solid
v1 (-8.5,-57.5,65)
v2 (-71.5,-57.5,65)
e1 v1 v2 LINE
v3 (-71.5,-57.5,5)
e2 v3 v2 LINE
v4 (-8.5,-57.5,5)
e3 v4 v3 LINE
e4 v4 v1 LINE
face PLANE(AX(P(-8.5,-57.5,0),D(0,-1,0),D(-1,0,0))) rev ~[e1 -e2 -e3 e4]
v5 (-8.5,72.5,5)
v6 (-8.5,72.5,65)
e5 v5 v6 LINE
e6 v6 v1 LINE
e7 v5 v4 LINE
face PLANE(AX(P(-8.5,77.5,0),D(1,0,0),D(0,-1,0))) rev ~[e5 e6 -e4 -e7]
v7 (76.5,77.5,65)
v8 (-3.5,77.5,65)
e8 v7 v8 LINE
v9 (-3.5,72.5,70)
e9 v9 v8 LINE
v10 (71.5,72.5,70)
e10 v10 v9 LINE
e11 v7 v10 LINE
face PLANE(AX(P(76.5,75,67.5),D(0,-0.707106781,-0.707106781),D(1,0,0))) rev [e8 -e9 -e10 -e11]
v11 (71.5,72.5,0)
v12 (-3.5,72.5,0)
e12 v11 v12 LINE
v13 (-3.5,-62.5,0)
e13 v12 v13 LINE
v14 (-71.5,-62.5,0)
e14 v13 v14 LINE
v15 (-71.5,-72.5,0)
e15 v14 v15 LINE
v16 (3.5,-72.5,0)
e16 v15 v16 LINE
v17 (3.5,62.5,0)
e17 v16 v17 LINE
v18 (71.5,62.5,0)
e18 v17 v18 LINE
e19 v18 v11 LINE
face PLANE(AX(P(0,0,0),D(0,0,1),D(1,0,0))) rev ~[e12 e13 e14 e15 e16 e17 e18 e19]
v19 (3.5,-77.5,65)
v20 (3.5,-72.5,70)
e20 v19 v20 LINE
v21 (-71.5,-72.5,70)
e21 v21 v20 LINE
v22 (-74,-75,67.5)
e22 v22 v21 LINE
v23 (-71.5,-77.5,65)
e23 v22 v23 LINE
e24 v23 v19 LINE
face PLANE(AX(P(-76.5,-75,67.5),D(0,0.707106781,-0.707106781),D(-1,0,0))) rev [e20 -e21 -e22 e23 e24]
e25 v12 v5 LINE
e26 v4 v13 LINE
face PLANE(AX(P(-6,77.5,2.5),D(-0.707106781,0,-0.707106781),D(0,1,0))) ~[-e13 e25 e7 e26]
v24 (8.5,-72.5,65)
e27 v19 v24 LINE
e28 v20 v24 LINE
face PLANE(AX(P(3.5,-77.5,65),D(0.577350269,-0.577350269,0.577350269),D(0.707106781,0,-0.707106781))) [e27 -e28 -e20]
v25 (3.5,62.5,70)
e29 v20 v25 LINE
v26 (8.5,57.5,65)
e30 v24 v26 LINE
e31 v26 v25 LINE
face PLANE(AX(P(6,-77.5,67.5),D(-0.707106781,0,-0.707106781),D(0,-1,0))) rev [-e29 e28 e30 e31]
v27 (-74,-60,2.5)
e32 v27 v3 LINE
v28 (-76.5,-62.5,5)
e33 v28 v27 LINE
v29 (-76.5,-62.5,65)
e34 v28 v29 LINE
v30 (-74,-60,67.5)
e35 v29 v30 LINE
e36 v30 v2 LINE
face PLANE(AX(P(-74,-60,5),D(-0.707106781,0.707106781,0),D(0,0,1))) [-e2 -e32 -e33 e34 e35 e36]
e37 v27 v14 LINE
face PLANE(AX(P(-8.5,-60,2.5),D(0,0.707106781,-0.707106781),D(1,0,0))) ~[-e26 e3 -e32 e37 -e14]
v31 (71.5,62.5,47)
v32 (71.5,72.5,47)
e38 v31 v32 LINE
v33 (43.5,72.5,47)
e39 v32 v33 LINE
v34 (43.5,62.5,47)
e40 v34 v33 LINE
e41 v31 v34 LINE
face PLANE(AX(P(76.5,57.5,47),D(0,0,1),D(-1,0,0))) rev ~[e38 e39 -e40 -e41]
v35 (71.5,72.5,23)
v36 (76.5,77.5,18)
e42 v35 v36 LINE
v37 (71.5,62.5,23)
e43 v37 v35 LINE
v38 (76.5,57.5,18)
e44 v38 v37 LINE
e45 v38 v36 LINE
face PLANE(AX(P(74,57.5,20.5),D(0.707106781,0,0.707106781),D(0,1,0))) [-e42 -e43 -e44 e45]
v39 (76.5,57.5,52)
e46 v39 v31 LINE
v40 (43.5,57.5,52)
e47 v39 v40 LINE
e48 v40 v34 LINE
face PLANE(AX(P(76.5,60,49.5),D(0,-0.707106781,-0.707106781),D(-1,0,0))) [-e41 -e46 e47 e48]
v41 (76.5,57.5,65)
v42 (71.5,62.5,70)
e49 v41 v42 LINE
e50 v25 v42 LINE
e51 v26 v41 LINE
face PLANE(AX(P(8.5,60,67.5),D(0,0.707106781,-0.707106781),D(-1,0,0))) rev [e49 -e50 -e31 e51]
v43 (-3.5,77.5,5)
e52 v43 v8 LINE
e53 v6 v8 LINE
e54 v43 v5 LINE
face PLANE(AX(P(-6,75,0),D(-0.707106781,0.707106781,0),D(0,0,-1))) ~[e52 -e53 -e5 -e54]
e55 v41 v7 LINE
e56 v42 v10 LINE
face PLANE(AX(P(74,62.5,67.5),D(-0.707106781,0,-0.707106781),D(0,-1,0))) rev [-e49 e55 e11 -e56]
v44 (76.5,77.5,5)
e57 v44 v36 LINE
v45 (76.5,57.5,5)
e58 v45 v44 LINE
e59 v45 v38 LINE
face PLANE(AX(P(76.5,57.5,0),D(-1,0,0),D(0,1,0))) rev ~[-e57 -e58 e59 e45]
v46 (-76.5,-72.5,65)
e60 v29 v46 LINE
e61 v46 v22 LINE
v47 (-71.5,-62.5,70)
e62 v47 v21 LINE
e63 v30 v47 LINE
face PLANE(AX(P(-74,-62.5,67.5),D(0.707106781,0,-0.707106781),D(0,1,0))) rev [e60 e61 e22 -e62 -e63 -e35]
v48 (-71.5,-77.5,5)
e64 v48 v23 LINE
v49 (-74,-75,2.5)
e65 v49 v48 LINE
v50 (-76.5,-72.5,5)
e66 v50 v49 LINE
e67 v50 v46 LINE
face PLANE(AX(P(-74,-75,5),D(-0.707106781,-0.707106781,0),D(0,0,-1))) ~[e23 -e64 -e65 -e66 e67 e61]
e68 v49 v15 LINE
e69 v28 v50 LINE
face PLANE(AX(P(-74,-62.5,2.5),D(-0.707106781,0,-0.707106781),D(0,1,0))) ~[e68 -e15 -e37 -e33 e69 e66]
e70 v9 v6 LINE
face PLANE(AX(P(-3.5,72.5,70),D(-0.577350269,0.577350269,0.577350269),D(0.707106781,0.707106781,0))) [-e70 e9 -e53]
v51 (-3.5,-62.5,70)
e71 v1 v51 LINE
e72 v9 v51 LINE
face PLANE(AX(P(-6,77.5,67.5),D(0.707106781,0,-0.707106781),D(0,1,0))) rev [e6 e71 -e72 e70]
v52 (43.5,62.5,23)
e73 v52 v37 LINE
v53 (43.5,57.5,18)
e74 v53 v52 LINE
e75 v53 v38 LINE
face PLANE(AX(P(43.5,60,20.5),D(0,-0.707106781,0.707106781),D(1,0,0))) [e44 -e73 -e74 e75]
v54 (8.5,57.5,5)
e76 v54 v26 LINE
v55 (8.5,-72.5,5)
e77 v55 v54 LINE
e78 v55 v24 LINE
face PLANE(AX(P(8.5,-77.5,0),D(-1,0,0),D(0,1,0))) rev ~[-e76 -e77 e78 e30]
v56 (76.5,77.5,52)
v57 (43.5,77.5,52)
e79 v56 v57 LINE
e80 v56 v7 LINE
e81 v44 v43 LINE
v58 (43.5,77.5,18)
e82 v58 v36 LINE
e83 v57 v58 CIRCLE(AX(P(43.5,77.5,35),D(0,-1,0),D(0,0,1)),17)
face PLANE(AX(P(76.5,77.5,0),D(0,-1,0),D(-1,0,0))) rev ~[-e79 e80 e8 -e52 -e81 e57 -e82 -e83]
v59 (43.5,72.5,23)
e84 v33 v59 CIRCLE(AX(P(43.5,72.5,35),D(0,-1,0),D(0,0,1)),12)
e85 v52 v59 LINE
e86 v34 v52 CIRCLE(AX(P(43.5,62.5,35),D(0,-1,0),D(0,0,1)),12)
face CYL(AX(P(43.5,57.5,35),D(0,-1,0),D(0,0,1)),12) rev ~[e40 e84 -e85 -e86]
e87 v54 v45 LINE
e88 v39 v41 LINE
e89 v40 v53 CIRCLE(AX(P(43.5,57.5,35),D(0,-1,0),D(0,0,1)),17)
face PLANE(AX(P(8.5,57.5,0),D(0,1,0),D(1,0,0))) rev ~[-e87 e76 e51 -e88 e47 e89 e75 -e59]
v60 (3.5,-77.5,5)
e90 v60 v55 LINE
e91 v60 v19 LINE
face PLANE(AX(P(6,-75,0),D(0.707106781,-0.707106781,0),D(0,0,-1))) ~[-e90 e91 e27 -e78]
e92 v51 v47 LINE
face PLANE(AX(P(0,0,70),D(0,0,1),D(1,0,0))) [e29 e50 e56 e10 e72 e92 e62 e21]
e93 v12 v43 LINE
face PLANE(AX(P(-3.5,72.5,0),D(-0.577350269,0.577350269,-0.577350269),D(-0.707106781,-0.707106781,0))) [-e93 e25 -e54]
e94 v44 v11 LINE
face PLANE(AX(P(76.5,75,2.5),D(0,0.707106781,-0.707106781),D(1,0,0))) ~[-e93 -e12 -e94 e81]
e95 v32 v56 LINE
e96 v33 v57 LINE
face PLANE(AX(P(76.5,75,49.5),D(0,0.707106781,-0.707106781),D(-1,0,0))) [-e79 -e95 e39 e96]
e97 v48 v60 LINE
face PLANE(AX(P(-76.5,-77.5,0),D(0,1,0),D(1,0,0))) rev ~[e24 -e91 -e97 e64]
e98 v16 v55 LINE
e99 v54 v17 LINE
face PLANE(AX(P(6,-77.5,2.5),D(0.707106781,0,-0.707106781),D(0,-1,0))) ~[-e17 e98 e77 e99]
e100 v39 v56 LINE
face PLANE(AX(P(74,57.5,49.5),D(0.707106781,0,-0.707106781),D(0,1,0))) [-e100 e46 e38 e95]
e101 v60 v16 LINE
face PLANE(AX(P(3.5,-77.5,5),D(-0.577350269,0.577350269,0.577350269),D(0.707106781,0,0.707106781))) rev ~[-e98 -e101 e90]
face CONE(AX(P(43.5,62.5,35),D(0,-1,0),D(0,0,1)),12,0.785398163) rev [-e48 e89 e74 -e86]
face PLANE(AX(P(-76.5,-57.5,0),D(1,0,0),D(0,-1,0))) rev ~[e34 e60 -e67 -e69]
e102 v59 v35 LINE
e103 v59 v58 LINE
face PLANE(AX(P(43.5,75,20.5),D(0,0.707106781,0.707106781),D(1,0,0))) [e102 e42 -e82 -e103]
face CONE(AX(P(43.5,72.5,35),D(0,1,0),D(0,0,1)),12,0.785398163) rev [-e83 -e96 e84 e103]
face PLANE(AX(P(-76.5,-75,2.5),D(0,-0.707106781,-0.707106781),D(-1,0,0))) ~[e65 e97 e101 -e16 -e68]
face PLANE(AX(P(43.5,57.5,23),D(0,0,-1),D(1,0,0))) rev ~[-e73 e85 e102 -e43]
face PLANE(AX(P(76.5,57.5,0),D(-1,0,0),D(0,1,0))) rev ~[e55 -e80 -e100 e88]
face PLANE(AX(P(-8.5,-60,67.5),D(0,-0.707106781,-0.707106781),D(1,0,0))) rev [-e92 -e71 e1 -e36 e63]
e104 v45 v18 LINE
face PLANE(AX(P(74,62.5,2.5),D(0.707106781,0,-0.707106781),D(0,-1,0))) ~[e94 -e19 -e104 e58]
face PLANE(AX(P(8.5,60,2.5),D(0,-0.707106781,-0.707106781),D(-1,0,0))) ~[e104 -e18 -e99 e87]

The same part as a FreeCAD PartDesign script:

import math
import FreeCAD as App
import Part
import Sketcher
Q = App.Units.Quantity


def edges_at(feature, points):
    """Names of the edges that pass closest to the given points."""
    edges = feature.Shape.Edges
    near = lambda p: min(range(len(edges)), key=lambda i: edges[i].distToShape(Part.Vertex(*p))[0])
    return sorted({f"Edge{near(p) + 1}" for p in points})


def add_polygon(sketch, points):
    """Adds a closed chain of lines whose ends are joined by coincident constraints."""
    first, n = sketch.GeometryCount, len(points)
    for a, b in zip(points, points[1:] + points[:1]):
        sketch.addGeometry(Part.LineSegment(App.Vector(*a, 0), App.Vector(*b, 0)), False)
    for i in range(n):
        sketch.addConstraint(Sketcher.Constraint("Coincident", first + i, 2, first + (i + 1) % n, 1))

doc = App.newDocument("Part")
body = doc.addObject("PartDesign::Body", "Body")

# Sketch on XY plane
sketch1 = body.newObject("Sketcher::SketchObject", "Sketch")
sketch1.AttachmentSupport = (doc.getObject("XY_Plane"), [""])
sketch1.MapMode = "FlatFace"
add_polygon(sketch1, [(8.5, 57.5), (76.5, 57.5), (76.5, 77.5), (-8.5, 77.5), (-8.5, -57.5), (-76.5, -57.5), (-76.5, -77.5), (8.5, -77.5)])  # lines 0-7
sketch1.addConstraint([
    Sketcher.Constraint("Horizontal", 0),
    Sketcher.Constraint("Vertical", 1),
    Sketcher.Constraint("Horizontal", 2),
    Sketcher.Constraint("Vertical", 3),
    Sketcher.Constraint("Horizontal", 4),
    Sketcher.Constraint("Vertical", 5),
    Sketcher.Constraint("Horizontal", 6),
    Sketcher.Constraint("Vertical", 7),
    Sketcher.Constraint("Symmetric", 0, 2, 4, 2, -1, 1),
    Sketcher.Constraint("Symmetric", 2, 2, 6, 2, -1, 1),
    Sketcher.Constraint("DistanceX", 0, 1, 0, 2, Q("68 mm")),
    Sketcher.Constraint("DistanceX", 2, 2, 2, 1, Q("85 mm")),
    Sketcher.Constraint("DistanceY", 1, 1, 1, 2, Q("20 mm")),
    Sketcher.Constraint("DistanceY", 3, 2, 3, 1, Q("135 mm")),
])
pad1 = body.newObject("PartDesign::Pad", "Pad")
pad1.Profile = sketch1
pad1.Length = 70
doc.recompute()

chamfer = body.newObject("PartDesign::Chamfer", "Chamfer")
chamfer.Base = (pad1, edges_at(pad1, [
    (-8.5, 77.5, 35),
    (-8.5, 10, 70),
    (34, 77.5, 70),
    (-42.5, -57.5, 70),
    (8.5, -10, 70),
    (-34, -77.5, 70),
    (42.5, 57.5, 70),
    (34, 77.5, 0),
    (42.5, 57.5, 0),
    (8.5, -10, 0),
    (-34, -77.5, 0),
    (8.5, -77.5, 35),
    (-42.5, -57.5, 0),
    (-8.5, 10, 0),
]))
chamfer.Size = 5

# Sketch on XZ plane
sketch2 = body.newObject("Sketcher::SketchObject", "Sketch001")
sketch2.AttachmentSupport = (doc.getObject("XZ_Plane"), [""])
sketch2.MapMode = "FlatFace"
sketch2.AttachmentOffset = App.Placement(App.Vector(0, 0, -57.5), App.Rotation())
sketch2.addGeometry([
    Part.ArcOfCircle(Part.Circle(App.Vector(43.5, 35, 0), App.Vector(0, 0, 1), 12), math.radians(90), math.radians(270)),
    Part.LineSegment(App.Vector(43.5, 23, 0), App.Vector(76.5, 23, 0)),
    Part.LineSegment(App.Vector(76.5, 23, 0), App.Vector(76.5, 47, 0)),
    Part.LineSegment(App.Vector(76.5, 47, 0), App.Vector(43.5, 47, 0)),
], False)
sketch2.addConstraint([
    Sketcher.Constraint("Tangent", 0, 2, 1, 1),
    Sketcher.Constraint("Coincident", 1, 2, 2, 1),
    Sketcher.Constraint("Coincident", 2, 2, 3, 1),
    Sketcher.Constraint("Tangent", 3, 2, 0, 1),
    Sketcher.Constraint("Horizontal", 1),
    Sketcher.Constraint("Vertical", 2),
    Sketcher.Constraint("Horizontal", 3),
    Sketcher.Constraint("Radius", 0, Q("12 mm")),
    Sketcher.Constraint("DistanceX", 1, 1, 1, 2, Q("33 mm")),
    Sketcher.Constraint("DistanceY", -1, 1, 0, 3, Q("35 mm")),
    Sketcher.Constraint("DistanceX", -1, 1, 0, 3, Q("43.5 mm")),
])
pocket1 = body.newObject("PartDesign::Pocket", "Pocket")
pocket1.Profile = sketch2
pocket1.Type = "ThroughAll"
doc.recompute()

chamfer2 = body.newObject("PartDesign::Chamfer", "Chamfer001")
chamfer2.Base = (pocket1, edges_at(pocket1, [
    (31.5, 57.5, 35),
    (31.5, 77.5, 35),
    (76.5, 67.5, 47),
    (76.5, 67.5, 23),
]))
chamfer2.Size = 5
doc.recompute()

chamfer3 = body.newObject("PartDesign::Chamfer", "Chamfer002")
chamfer3.Base = (chamfer2, edges_at(chamfer2, [(76.5, 67.5, 70)]))
chamfer3.Size = 5
doc.recompute()

chamfer4 = body.newObject("PartDesign::Chamfer", "Chamfer003")
chamfer4.Base = (chamfer3, edges_at(chamfer3, [(76.5, 67.5, 0)]))
chamfer4.Size = 5
doc.recompute()

chamfer5 = body.newObject("PartDesign::Chamfer", "Chamfer004")
chamfer5.Base = (chamfer4, edges_at(chamfer4, [(-76.5, -57.5, 35)]))
chamfer5.Size = 5
doc.recompute()

chamfer6 = body.newObject("PartDesign::Chamfer", "Chamfer005")
chamfer6.Base = (chamfer5, edges_at(chamfer5, [(-76.5, -77.5, 35)]))
chamfer6.Size = 5
doc.recompute()

chamfer7 = body.newObject("PartDesign::Chamfer", "Chamfer006")
chamfer7.Base = (chamfer6, edges_at(chamfer6, [(-76.5, -67.5, 0)]))
chamfer7.Size = 5
doc.recompute()

chamfer8 = body.newObject("PartDesign::Chamfer", "Chamfer007")
chamfer8.Base = (chamfer7, edges_at(chamfer7, [(-76.5, -67.5, 70)]))
chamfer8.Size = 5

doc.recompute()
